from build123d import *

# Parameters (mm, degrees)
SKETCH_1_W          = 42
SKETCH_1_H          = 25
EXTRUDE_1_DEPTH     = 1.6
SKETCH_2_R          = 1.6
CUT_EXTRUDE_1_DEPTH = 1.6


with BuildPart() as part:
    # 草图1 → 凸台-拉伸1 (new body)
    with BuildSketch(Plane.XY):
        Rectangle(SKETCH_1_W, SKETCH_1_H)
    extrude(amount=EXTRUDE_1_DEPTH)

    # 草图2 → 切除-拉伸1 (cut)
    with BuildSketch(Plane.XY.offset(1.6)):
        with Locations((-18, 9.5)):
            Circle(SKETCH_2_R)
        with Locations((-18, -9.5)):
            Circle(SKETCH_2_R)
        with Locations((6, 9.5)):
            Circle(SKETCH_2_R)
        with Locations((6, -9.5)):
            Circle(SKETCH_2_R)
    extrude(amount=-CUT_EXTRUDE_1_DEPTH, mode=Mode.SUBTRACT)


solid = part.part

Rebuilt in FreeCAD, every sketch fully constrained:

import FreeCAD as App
import Part
import Sketcher

V = App.Vector
Q = App.Units.Quantity

doc = App.newDocument("Part")
body = doc.addObject("PartDesign::Body", "Body")

# Sketch on XY plane
sketch1 = body.newObject("Sketcher::SketchObject", "Sketch")
sketch1.AttachmentSupport = (doc.getObject("XY_Plane"), [""])
sketch1.MapMode = "FlatFace"
sketch1.addGeometry([
    Part.LineSegment(V(-21, 12, 0), V(-21, -12, 0)),
    Part.LineSegment(V(-21, -12, 0), V(21, -12, 0)),
    Part.LineSegment(V(21, -12, 0), V(21, 12, 0)),
    Part.LineSegment(V(21, 12, 0), V(-21, 12, 0)),
], False)
sketch1.addConstraint([
    Sketcher.Constraint("Coincident", 0, 2, 1, 1),
    Sketcher.Constraint("Coincident", 1, 2, 2, 1),
    Sketcher.Constraint("Coincident", 2, 2, 3, 1),
    Sketcher.Constraint("Coincident", 3, 2, 0, 1),
    Sketcher.Constraint("Vertical", 0),
    Sketcher.Constraint("Horizontal", 1),
    Sketcher.Constraint("Vertical", 2),
    Sketcher.Constraint("Horizontal", 3),
    Sketcher.Constraint("Symmetric", 0, 2, 2, 2, -1, 1),
    Sketcher.Constraint("DistanceX", 1, 1, 1, 2, Q("42 mm")),
    Sketcher.Constraint("DistanceY", 0, 2, 0, 1, Q("25 mm")),
])
pad1 = body.newObject("PartDesign::Pad", "Pad")
pad1.Profile = sketch1
pad1.Length = 1.6

# Sketch on XY plane
sketch2 = body.newObject("Sketcher::SketchObject", "Sketch001")
sketch2.AttachmentSupport = (doc.getObject("XY_Plane"), [""])
sketch2.MapMode = "FlatFace"
sketch2.AttachmentOffset = App.Placement(V(0, 0, 1.6), App.Rotation())
sketch2.addGeometry([
    Part.Circle(V(-18, 9.5, 0), V(0, 0, 1), 1.6),
    Part.Circle(V(-18, -9.5, 0), V(0, 0, 1), 1.6),
    Part.Circle(V(6, 9.5, 0), V(0, 0, 1), 1.6),
    Part.Circle(V(6, -9.5, 0), V(0, 0, 1), 1.6),
], False)
sketch2.addConstraint([
    Sketcher.Constraint("Equal", 0, 1),
    Sketcher.Constraint("Equal", 1, 2),
    Sketcher.Constraint("Equal", 2, 3),
    Sketcher.Constraint("Symmetric", 0, 3, 1, 3, -1),
    Sketcher.Constraint("Symmetric", 2, 3, 3, 3, -1),
    Sketcher.Constraint("Horizontal", 0, 3, 2, 3),
    Sketcher.Constraint("Diameter", 0, Q("3.2 mm")),
    Sketcher.Constraint("DistanceX", 0, 3, -1, 1, Q("18 mm")),
    Sketcher.Constraint("DistanceX", -1, 1, 2, 3, Q("6 mm")),
    Sketcher.Constraint("DistanceY", 1, 3, 0, 3, Q("19 mm")),
])
pocket1 = body.newObject("PartDesign::Pocket", "Pocket")
pocket1.Profile = sketch2
pocket1.Length = 1.6

doc.recompute()
